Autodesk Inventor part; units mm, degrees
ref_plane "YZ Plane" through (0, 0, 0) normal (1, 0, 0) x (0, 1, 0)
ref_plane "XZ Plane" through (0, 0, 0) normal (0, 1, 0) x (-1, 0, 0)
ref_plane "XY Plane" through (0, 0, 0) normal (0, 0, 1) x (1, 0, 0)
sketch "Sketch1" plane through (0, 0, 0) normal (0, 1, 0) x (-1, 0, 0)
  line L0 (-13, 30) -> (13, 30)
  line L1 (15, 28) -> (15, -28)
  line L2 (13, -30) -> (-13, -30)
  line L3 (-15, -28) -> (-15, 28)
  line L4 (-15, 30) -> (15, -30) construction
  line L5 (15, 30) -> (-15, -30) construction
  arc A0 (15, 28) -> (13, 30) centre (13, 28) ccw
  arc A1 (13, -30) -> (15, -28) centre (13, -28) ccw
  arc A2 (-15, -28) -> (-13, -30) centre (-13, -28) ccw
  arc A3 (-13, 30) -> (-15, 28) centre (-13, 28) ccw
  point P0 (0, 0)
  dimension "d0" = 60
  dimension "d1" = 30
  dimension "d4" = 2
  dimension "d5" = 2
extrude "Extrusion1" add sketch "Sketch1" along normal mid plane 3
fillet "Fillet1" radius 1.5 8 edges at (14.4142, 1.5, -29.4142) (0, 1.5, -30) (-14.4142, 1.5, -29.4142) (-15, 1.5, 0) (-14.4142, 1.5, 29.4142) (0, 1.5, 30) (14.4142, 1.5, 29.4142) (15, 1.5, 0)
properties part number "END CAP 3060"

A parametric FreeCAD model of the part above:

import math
import FreeCAD as App
import Part
import Sketcher
from FreeCAD import Vector
Q = App.Units.Quantity


def edges_at(feature, points):
    """Names of the edges that pass closest to the given points."""
    edges = feature.Shape.Edges
    near = lambda p: min(range(len(edges)), key=lambda i: edges[i].distToShape(Part.Vertex(*p))[0])
    return sorted({f"Edge{near(p) + 1}" for p in points})

doc = App.newDocument("Part")
params = doc.addObject("Spreadsheet::Sheet", "Params")
for row, (alias, value) in enumerate([
    ("sketch1_radius", "2 mm"),
    ("pad1_length", "3 mm"),
    ("fillet_radius", "1.5 mm"),
], start=1):
    params.set(f"A{row}", alias)
    params.set(f"B{row}", "=" + value)
    params.setAlias(f"B{row}", alias)

body = doc.addObject("PartDesign::Body", "Body")

# Sketch on XZ plane
sketch1 = doc.addObject("Sketcher::SketchObject", "Sketch")
body.addObject(sketch1)
sketch1.AttachmentSupport = (doc.XZ_Plane, [""])
sketch1.MapMode = "FlatFace"
sketch1.addGeometry(Part.LineSegment(Vector(-13, 30, 0), Vector(13, 30, 0)), False)
sketch1.addGeometry(Part.ArcOfCircle(Part.Circle(Vector(13, 28, 0), Vector(0, 0, 1), 2), math.radians(0), math.radians(90)), False)
sketch1.addGeometry(Part.LineSegment(Vector(15, 28, 0), Vector(15, -28, 0)), False)
sketch1.addGeometry(Part.ArcOfCircle(Part.Circle(Vector(13, -28, 0), Vector(0, 0, 1), 2), math.radians(-90), math.radians(0)), False)
sketch1.addGeometry(Part.LineSegment(Vector(13, -30, 0), Vector(-13, -30, 0)), False)
sketch1.addGeometry(Part.ArcOfCircle(Part.Circle(Vector(-13, -28, 0), Vector(0, 0, 1), 2), math.radians(180), math.radians(270)), False)
sketch1.addGeometry(Part.LineSegment(Vector(-15, -28, 0), Vector(-15, 28, 0)), False)
sketch1.addGeometry(Part.ArcOfCircle(Part.Circle(Vector(-13, 28, 0), Vector(0, 0, 1), 2), math.radians(90), math.radians(180)), False)
sketch1.addConstraint(Sketcher.Constraint("Tangent", 0, 2, 1, 2))
sketch1.addConstraint(Sketcher.Constraint("Tangent", 1, 1, 2, 1))
sketch1.addConstraint(Sketcher.Constraint("Tangent", 2, 2, 3, 2))
sketch1.addConstraint(Sketcher.Constraint("Tangent", 3, 1, 4, 1))
sketch1.addConstraint(Sketcher.Constraint("Tangent", 4, 2, 5, 2))
sketch1.addConstraint(Sketcher.Constraint("Tangent", 5, 1, 6, 1))
sketch1.addConstraint(Sketcher.Constraint("Tangent", 6, 2, 7, 2))
sketch1.addConstraint(Sketcher.Constraint("Tangent", 7, 1, 0, 1))
sketch1.addConstraint(Sketcher.Constraint("Horizontal", 0))
sketch1.addConstraint(Sketcher.Constraint("Vertical", 2))
sketch1.addConstraint(Sketcher.Constraint("Horizontal", 4))
sketch1.addConstraint(Sketcher.Constraint("Vertical", 6))
sketch1.addConstraint(Sketcher.Constraint("Equal", 1, 3))
sketch1.addConstraint(Sketcher.Constraint("Equal", 3, 5))
sketch1.addConstraint(Sketcher.Constraint("Equal", 5, 7))
sketch1.addConstraint(Sketcher.Constraint("Symmetric", 1, 3, 5, 3, -1, 1))
sketch1.addConstraint(Sketcher.Constraint("Radius", 1, Q("2 mm")))
sketch1.addConstraint(Sketcher.Constraint("DistanceY", -1, 1, 0, 2, Q("30 mm")))
sketch1.addConstraint(Sketcher.Constraint("DistanceX", 5, 1, 2, 2, Q("30 mm")))
sketch1.setExpression("Constraints[16]", "Params.sketch1_radius")
pad1 = doc.addObject("PartDesign::Pad", "Pad")
body.addObject(pad1)
pad1.Profile = sketch1
pad1.setExpression("Length", "Params.pad1_length")
pad1.Midplane = True
doc.recompute()

fillet = doc.addObject("PartDesign::Fillet", "Fillet")
body.addObject(fillet)
fillet.Base = (pad1, edges_at(pad1, [
    (14.414, 1.5, -29.414),
    (0, 1.5, -30),
    (-14.414, 1.5, -29.414),
    (-15, 1.5, 0),
    (-14.414, 1.5, 29.414),
    (0, 1.5, 30),
    (14.414, 1.5, 29.414),
    (15, 1.5, 0),
]))
fillet.setExpression("Radius", "Params.fillet_radius")

doc.recompute()
